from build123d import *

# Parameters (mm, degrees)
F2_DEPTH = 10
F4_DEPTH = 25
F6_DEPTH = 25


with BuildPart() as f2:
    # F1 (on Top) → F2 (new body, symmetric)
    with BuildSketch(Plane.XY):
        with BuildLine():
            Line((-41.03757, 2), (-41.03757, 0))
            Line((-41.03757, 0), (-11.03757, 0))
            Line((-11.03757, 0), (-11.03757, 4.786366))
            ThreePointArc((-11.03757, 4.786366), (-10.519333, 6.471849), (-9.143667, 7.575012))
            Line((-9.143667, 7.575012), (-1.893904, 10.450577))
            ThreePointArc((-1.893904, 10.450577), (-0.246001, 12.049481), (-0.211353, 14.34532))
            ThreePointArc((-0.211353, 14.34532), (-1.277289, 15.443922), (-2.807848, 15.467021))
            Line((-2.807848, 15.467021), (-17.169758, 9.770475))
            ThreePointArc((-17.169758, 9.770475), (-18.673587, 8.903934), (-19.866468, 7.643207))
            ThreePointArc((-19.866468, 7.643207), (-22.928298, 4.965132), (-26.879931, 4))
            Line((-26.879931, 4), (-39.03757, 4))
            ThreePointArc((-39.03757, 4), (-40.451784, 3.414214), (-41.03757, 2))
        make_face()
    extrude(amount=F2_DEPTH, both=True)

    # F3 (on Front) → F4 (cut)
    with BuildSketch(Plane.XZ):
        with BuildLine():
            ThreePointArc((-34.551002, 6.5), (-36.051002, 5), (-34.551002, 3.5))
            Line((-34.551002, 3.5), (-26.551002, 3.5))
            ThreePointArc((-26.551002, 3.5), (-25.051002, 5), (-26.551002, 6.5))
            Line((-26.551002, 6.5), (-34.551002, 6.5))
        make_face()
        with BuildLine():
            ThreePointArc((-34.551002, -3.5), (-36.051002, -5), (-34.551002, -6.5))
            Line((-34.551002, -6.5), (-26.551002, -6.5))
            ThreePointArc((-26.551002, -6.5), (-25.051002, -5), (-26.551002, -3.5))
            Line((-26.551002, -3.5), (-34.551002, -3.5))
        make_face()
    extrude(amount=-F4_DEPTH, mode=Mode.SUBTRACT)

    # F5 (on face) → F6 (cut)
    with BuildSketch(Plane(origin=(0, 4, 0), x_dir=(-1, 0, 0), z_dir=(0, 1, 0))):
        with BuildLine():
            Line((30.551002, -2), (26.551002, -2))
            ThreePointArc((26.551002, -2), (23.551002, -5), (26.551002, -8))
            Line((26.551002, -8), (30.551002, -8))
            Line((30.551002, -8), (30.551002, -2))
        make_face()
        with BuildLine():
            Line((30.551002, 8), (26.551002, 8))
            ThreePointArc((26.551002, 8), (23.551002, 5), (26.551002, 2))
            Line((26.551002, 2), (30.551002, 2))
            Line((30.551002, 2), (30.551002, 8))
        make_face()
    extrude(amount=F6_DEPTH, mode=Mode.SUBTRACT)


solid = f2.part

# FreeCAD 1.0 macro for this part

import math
import FreeCAD as App
import Part
import Sketcher
from FreeCAD import Vector
Q = App.Units.Quantity

doc = App.newDocument("Part")
body = doc.addObject("PartDesign::Body", "Body")

sketch1 = body.newObject("Sketcher::SketchObject", "Sketch")
sketch1.AttachmentSupport = (doc.getObject("XY_Plane"), [""])
sketch1.MapMode = "FlatFace"
sketch1.addGeometry([
    Part.LineSegment(Vector(-41.03757, 2, 0), Vector(-41.03757, 0, 0)),
    Part.LineSegment(Vector(-41.03757, 0, 0), Vector(-11.03757, 0, 0)),
    Part.LineSegment(Vector(-11.03757, 0, 0), Vector(-11.03757, 4.786366, 0)),
    Part.ArcOfCircle(Part.Circle(Vector(-8.037572, 4.786367, 0), Vector(0, 0, 1), 2.999998), math.radians(111.63538), math.radians(180.000014)),
    Part.LineSegment(Vector(-9.143667, 7.575012, 0), Vector(-1.893904, 10.450577, 0)),
    Part.ArcOfCircle(Part.Circle(Vector(-3.000001, 13.239224, 0), Vector(0, 0, 1), 3.000001), math.radians(-68.364606), math.radians(21.635371)),
    Part.ArcOfCircle(Part.Circle(Vector(-2.070451, 13.607922, 0), Vector(0, 0, 1), 2.000001), math.radians(21.635398), math.radians(111.635349)),
    Part.LineSegment(Vector(-2.807848, 15.467021, 0), Vector(-17.169758, 9.770475, 0)),
    Part.ArcOfCircle(Part.Circle(Vector(-14.957573, 4.193191, 0), Vector(0, 0, 1), 5.999989), math.radians(111.635355), math.radians(144.9001)),
    Part.ArcOfCircle(Part.Circle(Vector(-26.87993, 12.572339, 0), Vector(0, 0, 1), 8.572339), math.radians(-90.000005), math.radians(-35.099934)),
    Part.LineSegment(Vector(-26.879931, 4, 0), Vector(-39.03757, 4, 0)),
    Part.ArcOfCircle(Part.Circle(Vector(-39.037571, 2.000001, 0), Vector(0, 0, 1), 1.999999), math.radians(89.999957), math.radians(180.000043)),
], False)
sketch1.addConstraint([
    Sketcher.Constraint("Coincident", 0, 2, 1, 1),
    Sketcher.Constraint("Coincident", 1, 2, 2, 1),
    Sketcher.Constraint("Tangent", 2, 2, 3, 2),
    Sketcher.Constraint("Tangent", 3, 1, 4, 1),
    Sketcher.Constraint("Tangent", 4, 2, 5, 1),
    Sketcher.Constraint("Tangent", 5, 2, 6, 1),
    Sketcher.Constraint("Tangent", 6, 2, 7, 1),
    Sketcher.Constraint("Tangent", 7, 2, 8, 1),
    Sketcher.Constraint("Tangent", 8, 2, 9, 2),
    Sketcher.Constraint("Tangent", 9, 1, 10, 1),
    Sketcher.Constraint("Tangent", 10, 2, 11, 1),
    Sketcher.Constraint("Tangent", 11, 2, 0, 1),
    Sketcher.Constraint("Vertical", 0),
    Sketcher.Constraint("Horizontal", 1),
    Sketcher.Constraint("Vertical", 2),
    Sketcher.Constraint("Horizontal", 10),
    Sketcher.Constraint("PointOnObject", 0, 2, -1),
    Sketcher.Constraint("Parallel", 4, 7),
    Sketcher.Constraint("Radius", 3, Q("2.999998 mm")),
    Sketcher.Constraint("Radius", 5, Q("3.000001 mm")),
    Sketcher.Constraint("Radius", 6, Q("2.000001 mm")),
    Sketcher.Constraint("Radius", 11, Q("1.999999 mm")),
    Sketcher.Constraint("DistanceX", 1, 1, 1, 2, Q("30 mm")),
    Sketcher.Constraint("DistanceY", 0, 2, 0, 1, Q("2 mm")),
    Sketcher.Constraint("DistanceX", 5, 3, -1, 1, Q("3.000001 mm")),
    Sketcher.Constraint("Radius", 8, Q("5.999989 mm")),
    Sketcher.Constraint("Radius", 9, Q("8.572339 mm")),
    Sketcher.Constraint("DistanceX", 8, 3, 3, 3, Q("6.920001 mm")),
    Sketcher.Constraint("DistanceX", 10, 2, 10, 1, Q("12.157639 mm")),
    Sketcher.Constraint("DistanceX", 6, 3, 5, 2, Q("1.859098 mm")),
    Sketcher.Constraint("DistanceY", 6, 3, 6, 2, Q("1.859099 mm")),
    Sketcher.Constraint("DistanceX", 3, 3, -1, 1, Q("8.037572 mm")),
])
pad1 = body.newObject("PartDesign::Pad", "Pad")
pad1.Profile = sketch1
pad1.Length = 20
pad1.Midplane = True

sketch2 = body.newObject("Sketcher::SketchObject", "Sketch001")
sketch2.AttachmentSupport = (doc.getObject("XZ_Plane"), [""])
sketch2.MapMode = "FlatFace"
sketch2.addGeometry([
    Part.ArcOfCircle(Part.Circle(Vector(-34.551002, 5, 0), Vector(0, 0, 1), 1.5), math.radians(90), math.radians(270)),
    Part.LineSegment(Vector(-34.551002, 3.5, 0), Vector(-26.551002, 3.5, 0)),
    Part.ArcOfCircle(Part.Circle(Vector(-26.551002, 5, 0), Vector(0, 0, 1), 1.5), math.radians(-90), math.radians(90)),
    Part.LineSegment(Vector(-26.551002, 6.5, 0), Vector(-34.551002, 6.5, 0)),
    Part.ArcOfCircle(Part.Circle(Vector(-34.551002, -5, 0), Vector(0, 0, 1), 1.5), math.radians(90), math.radians(270)),
    Part.LineSegment(Vector(-34.551002, -6.5, 0), Vector(-26.551002, -6.5, 0)),
    Part.ArcOfCircle(Part.Circle(Vector(-26.551002, -5, 0), Vector(0, 0, 1), 1.5), math.radians(-90), math.radians(90)),
    Part.LineSegment(Vector(-26.551002, -3.5, 0), Vector(-34.551002, -3.5, 0)),
], False)
sketch2.addConstraint([
    Sketcher.Constraint("Tangent", 0, 2, 1, 1),
    Sketcher.Constraint("Tangent", 1, 2, 2, 1),
    Sketcher.Constraint("Tangent", 2, 2, 3, 1),
    Sketcher.Constraint("Tangent", 3, 2, 0, 1),
    Sketcher.Constraint("Tangent", 4, 2, 5, 1),
    Sketcher.Constraint("Tangent", 5, 2, 6, 1),
    Sketcher.Constraint("Tangent", 6, 2, 7, 1),
    Sketcher.Constraint("Tangent", 7, 2, 4, 1),
    Sketcher.Constraint("Horizontal", 1),
    Sketcher.Constraint("Horizontal", 3),
    Sketcher.Constraint("Horizontal", 5),
    Sketcher.Constraint("Horizontal", 7),
    Sketcher.Constraint("Equal", 2, 4),
    Sketcher.Constraint("Symmetric", 0, 3, 4, 3, -1),
    Sketcher.Constraint("Vertical", 2, 3, 6, 3),
    Sketcher.Constraint("Radius", 0, Q("1.5 mm")),
    Sketcher.Constraint("DistanceX", 1, 1, 1, 2, Q("8 mm")),
    Sketcher.Constraint("DistanceY", -1, 1, 0, 3, Q("5 mm")),
    Sketcher.Constraint("DistanceX", 0, 3, -1, 1, Q("34.551002 mm")),
])
pocket1 = body.newObject("PartDesign::Pocket", "Pocket")
pocket1.Profile = sketch2
pocket1.Length = 25

sketch3 = body.newObject("Sketcher::SketchObject", "Sketch002")
sketch3.AttachmentSupport = (doc.getObject("XZ_Plane"), [""])
sketch3.MapMode = "FlatFace"
sketch3.AttachmentOffset = App.Placement(Vector(0, 0, -4), App.Rotation())
sketch3.addGeometry([
    Part.LineSegment(Vector(-30.551002, -2, 0), Vector(-26.551002, -2, 0)),
    Part.ArcOfCircle(Part.Circle(Vector(-26.551002, -5, 0), Vector(0, 0, 1), 3), math.radians(-90), math.radians(90)),
    Part.LineSegment(Vector(-26.551002, -8, 0), Vector(-30.551002, -8, 0)),
    Part.LineSegment(Vector(-30.551002, -8, 0), Vector(-30.551002, -2, 0)),
    Part.LineSegment(Vector(-30.551002, 8, 0), Vector(-26.551002, 8, 0)),
    Part.ArcOfCircle(Part.Circle(Vector(-26.551002, 5, 0), Vector(0, 0, 1), 3), math.radians(-90), math.radians(90)),
    Part.LineSegment(Vector(-26.551002, 2, 0), Vector(-30.551002, 2, 0)),
    Part.LineSegment(Vector(-30.551002, 2, 0), Vector(-30.551002, 8, 0)),
], False)
sketch3.addConstraint([
    Sketcher.Constraint("Tangent", 0, 2, 1, 2),
    Sketcher.Constraint("Tangent", 1, 1, 2, 1),
    Sketcher.Constraint("Coincident", 2, 2, 3, 1),
    Sketcher.Constraint("Coincident", 3, 2, 0, 1),
    Sketcher.Constraint("Tangent", 4, 2, 5, 2),
    Sketcher.Constraint("Tangent", 5, 1, 6, 1),
    Sketcher.Constraint("Coincident", 6, 2, 7, 1),
    Sketcher.Constraint("Coincident", 7, 2, 4, 1),
    Sketcher.Constraint("Horizontal", 0),
    Sketcher.Constraint("Horizontal", 2),
    Sketcher.Constraint("Vertical", 3),
    Sketcher.Constraint("Horizontal", 4),
    Sketcher.Constraint("Horizontal", 6),
    Sketcher.Constraint("Vertical", 7),
    Sketcher.Constraint("Equal", 1, 5),
    Sketcher.Constraint("Symmetric", 1, 3, 5, 3, -1),
    Sketcher.Constraint("Vertical", 3, 2, 6, 2),
    Sketcher.Constraint("Radius", 1, Q("3 mm")),
    Sketcher.Constraint("DistanceX", 0, 1, 0, 2, Q("4 mm")),
    Sketcher.Constraint("DistanceY", 1, 3, -1, 1, Q("5 mm")),
    Sketcher.Constraint("DistanceX", 1, 3, -1, 1, Q("26.551002 mm")),
])
pocket2 = body.newObject("PartDesign::Pocket", "Pocket001")
pocket2.Profile = sketch3
pocket2.Length = 25

doc.recompute()
